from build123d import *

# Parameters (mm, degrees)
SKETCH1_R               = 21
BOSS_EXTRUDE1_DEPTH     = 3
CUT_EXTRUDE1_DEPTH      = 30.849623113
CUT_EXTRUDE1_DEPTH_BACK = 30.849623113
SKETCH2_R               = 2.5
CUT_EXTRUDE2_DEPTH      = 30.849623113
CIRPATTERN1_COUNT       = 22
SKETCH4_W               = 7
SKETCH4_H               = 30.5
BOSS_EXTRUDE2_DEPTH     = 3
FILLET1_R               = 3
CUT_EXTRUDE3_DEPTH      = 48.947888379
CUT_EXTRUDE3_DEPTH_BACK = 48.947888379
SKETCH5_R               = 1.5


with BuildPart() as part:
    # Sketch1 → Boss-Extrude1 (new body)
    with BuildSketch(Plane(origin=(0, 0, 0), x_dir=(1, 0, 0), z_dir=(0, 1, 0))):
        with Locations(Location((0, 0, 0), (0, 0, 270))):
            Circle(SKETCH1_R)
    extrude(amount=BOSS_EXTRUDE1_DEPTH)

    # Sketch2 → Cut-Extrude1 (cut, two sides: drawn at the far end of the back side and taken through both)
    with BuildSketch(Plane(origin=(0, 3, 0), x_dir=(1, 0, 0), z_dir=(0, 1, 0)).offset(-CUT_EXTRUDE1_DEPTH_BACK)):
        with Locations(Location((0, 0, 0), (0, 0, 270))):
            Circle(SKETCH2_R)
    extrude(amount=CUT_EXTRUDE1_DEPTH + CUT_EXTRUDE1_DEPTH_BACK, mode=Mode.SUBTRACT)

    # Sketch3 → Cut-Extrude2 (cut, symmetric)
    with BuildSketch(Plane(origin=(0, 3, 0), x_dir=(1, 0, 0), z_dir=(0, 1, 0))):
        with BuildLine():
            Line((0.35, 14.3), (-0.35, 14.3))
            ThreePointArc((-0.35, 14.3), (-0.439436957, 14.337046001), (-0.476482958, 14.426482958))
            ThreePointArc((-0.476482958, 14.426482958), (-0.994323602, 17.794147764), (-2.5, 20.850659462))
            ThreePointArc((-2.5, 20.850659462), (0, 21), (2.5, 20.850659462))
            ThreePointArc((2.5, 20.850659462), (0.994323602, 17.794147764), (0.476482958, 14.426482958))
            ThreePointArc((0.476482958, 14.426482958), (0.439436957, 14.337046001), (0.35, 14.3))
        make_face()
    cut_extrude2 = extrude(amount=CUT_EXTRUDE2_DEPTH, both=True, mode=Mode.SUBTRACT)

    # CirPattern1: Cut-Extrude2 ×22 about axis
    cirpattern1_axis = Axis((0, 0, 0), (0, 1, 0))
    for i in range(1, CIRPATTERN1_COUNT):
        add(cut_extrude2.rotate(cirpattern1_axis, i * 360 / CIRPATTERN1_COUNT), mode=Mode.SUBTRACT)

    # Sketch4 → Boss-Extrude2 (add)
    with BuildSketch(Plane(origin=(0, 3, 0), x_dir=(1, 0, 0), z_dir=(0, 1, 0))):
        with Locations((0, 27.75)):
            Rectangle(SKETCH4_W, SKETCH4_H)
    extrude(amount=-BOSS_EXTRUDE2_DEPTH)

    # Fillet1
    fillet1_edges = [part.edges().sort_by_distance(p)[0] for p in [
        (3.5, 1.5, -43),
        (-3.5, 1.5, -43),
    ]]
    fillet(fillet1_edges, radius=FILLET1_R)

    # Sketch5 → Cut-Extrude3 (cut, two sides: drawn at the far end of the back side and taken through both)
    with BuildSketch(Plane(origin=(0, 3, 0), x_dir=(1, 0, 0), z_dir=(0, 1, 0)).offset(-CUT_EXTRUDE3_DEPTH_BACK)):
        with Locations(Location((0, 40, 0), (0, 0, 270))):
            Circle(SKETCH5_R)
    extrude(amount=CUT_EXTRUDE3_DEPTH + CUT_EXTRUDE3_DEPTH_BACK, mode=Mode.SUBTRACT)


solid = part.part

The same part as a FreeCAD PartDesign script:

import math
import FreeCAD as App
import Part
import Sketcher
from FreeCAD import Vector


def edges_at(feature, points):
    """Names of the edges that pass closest to the given points."""
    edges = feature.Shape.Edges
    near = lambda p: min(range(len(edges)), key=lambda i: edges[i].distToShape(Part.Vertex(*p))[0])
    return sorted({f"Edge{near(p) + 1}" for p in points})

doc = App.newDocument("Part")
body = doc.addObject("PartDesign::Body", "Body")

sketch1 = doc.addObject("Sketcher::SketchObject", "Sketch")
body.addObject(sketch1)
sketch1.AttachmentSupport = (doc.XZ_Plane, [""])
sketch1.MapMode = "FlatFace"
sketch1.addGeometry(Part.Circle(Vector(0, 0, 0), Vector(0, 0, 1), 21), False)
sketch1.addConstraint([
    Sketcher.Constraint("Coincident", 0, 3, -1, 1),
    Sketcher.Constraint("Diameter", 0, 42.0),
])
pad1 = doc.addObject("PartDesign::Pad", "Pad")
body.addObject(pad1)
pad1.Profile = sketch1
pad1.Length = 3
pad1.Reversed = True

sketch2 = doc.addObject("Sketcher::SketchObject", "Sketch001")
body.addObject(sketch2)
sketch2.AttachmentSupport = (doc.XZ_Plane, [""])
sketch2.MapMode = "FlatFace"
sketch2.AttachmentOffset = App.Placement(Vector(0, 0, -3), App.Rotation())
sketch2.addGeometry(Part.Circle(Vector(0, 0, 0), Vector(0, 0, 1), 2.5), False)
sketch2.addConstraint([
    Sketcher.Constraint("Coincident", 0, 3, -1, 1),
    Sketcher.Constraint("Diameter", 0, 5.0),
])
pocket1 = doc.addObject("PartDesign::Pocket", "Pocket")
body.addObject(pocket1)
pocket1.Profile = sketch2
pocket1.Type = "ThroughAll"
pocket1.Midplane = True

sketch3 = doc.addObject("Sketcher::SketchObject", "Sketch002")
body.addObject(sketch3)
sketch3.AttachmentSupport = (doc.XZ_Plane, [""])
sketch3.MapMode = "FlatFace"
sketch3.AttachmentOffset = App.Placement(Vector(0, 0, -3), App.Rotation())
sketch3.addGeometry([
    Part.LineSegment(Vector(-0.35, -14.3, 0), Vector(0.35, -14.3, 0)),
    Part.ArcOfCircle(Part.Circle(Vector(0.35, -14.426483, 0), Vector(0, 0, 1), 0.126483), math.radians(0), math.radians(90)),
    Part.ArcOfCircle(Part.Circle(Vector(11.685844, -14.426483, 0), Vector(0, 0, 1), 11.209361), math.radians(180), math.radians(214.967255)),
    Part.ArcOfCircle(Part.Circle(Vector(0, 0, 0), Vector(0, 0, 1), 21), math.radians(-96.837141), math.radians(-83.162859)),
    Part.ArcOfCircle(Part.Circle(Vector(-11.685844, -14.426483, 0), Vector(0, 0, 1), 11.209361), math.radians(-34.967255), math.radians(0)),
    Part.ArcOfCircle(Part.Circle(Vector(-0.35, -14.426483, 0), Vector(0, 0, 1), 0.126483), math.radians(90), math.radians(180)),
], False)
sketch3.addConstraint([
    Sketcher.Constraint("Tangent", 0, 2, 1, 2),
    Sketcher.Constraint("Tangent", 1, 1, 2, 1),
    Sketcher.Constraint("Coincident", 2, 2, 3, 2),
    Sketcher.Constraint("Coincident", 3, 1, 4, 1),
    Sketcher.Constraint("Tangent", 4, 2, 5, 2),
    Sketcher.Constraint("Tangent", 5, 1, 0, 1),
    Sketcher.Constraint("Horizontal", 0),
    Sketcher.Constraint("Coincident", 3, 3, -1, 1),
    Sketcher.Constraint("Equal", 2, 4),
    Sketcher.Constraint("Equal", 1, 5),
    Sketcher.Constraint("Symmetric", 2, 3, 4, 3, -2),
    Sketcher.Constraint("Horizontal", 1, 3, 2, 3),
    Sketcher.Constraint("Radius", 3, 21.0),
    Sketcher.Constraint("DistanceX", 0, 1, 0, 2, 0.7),
    Sketcher.Constraint("DistanceX", 3, 1, 2, 2, 5.0),
    Sketcher.Constraint("DistanceY", 0, 2, -1, 1, 14.3),
    Sketcher.Constraint("Radius", 2, 11.209361),
])
pocket2 = doc.addObject("PartDesign::Pocket", "Pocket001")
body.addObject(pocket2)
pocket2.Profile = sketch3
pocket2.Length = 61.699246
pocket2.Midplane = True
doc.recompute()

polarpattern = doc.addObject("PartDesign::PolarPattern", "PolarPattern")
body.addObject(polarpattern)
polarpattern.Originals = [pocket2]
polarpattern.Axis = (doc.Y_Axis, [""])
polarpattern.Angle = 360
polarpattern.Occurrences = 22
body.Tip = polarpattern

sketch4 = doc.addObject("Sketcher::SketchObject", "Sketch003")
body.addObject(sketch4)
sketch4.AttachmentSupport = (doc.XZ_Plane, [""])
sketch4.MapMode = "FlatFace"
sketch4.AttachmentOffset = App.Placement(Vector(0, 0, -3), App.Rotation())
sketch4.addGeometry([
    Part.LineSegment(Vector(-3.5, -43, 0), Vector(-3.5, -12.5, 0)),
    Part.LineSegment(Vector(-3.5, -12.5, 0), Vector(3.5, -12.5, 0)),
    Part.LineSegment(Vector(3.5, -12.5, 0), Vector(3.5, -43, 0)),
    Part.LineSegment(Vector(3.5, -43, 0), Vector(-3.5, -43, 0)),
], False)
sketch4.addConstraint([
    Sketcher.Constraint("Coincident", 0, 2, 1, 1),
    Sketcher.Constraint("Coincident", 1, 2, 2, 1),
    Sketcher.Constraint("Coincident", 2, 2, 3, 1),
    Sketcher.Constraint("Coincident", 3, 2, 0, 1),
    Sketcher.Constraint("Vertical", 0),
    Sketcher.Constraint("Horizontal", 1),
    Sketcher.Constraint("Vertical", 2),
    Sketcher.Constraint("Horizontal", 3),
    Sketcher.Constraint("DistanceX", 1, 1, 1, 2, 7.0),
    Sketcher.Constraint("DistanceY", 0, 1, 0, 2, 30.5),
    Sketcher.Constraint("DistanceY", 2, 2, -1, 1, 43.0),
    Sketcher.Constraint("DistanceX", 0, 2, -1, 1, 3.5),
])
pad2 = doc.addObject("PartDesign::Pad", "Pad001")
body.addObject(pad2)
pad2.Profile = sketch4
pad2.Length = 3
doc.recompute()

fillet = doc.addObject("PartDesign::Fillet", "Fillet")
body.addObject(fillet)
fillet.Base = (pad2, edges_at(pad2, [(3.5, 1.5, -43), (-3.5, 1.5, -43)]))
fillet.Radius = 3

sketch5 = doc.addObject("Sketcher::SketchObject", "Sketch004")
body.addObject(sketch5)
sketch5.AttachmentSupport = (doc.XZ_Plane, [""])
sketch5.MapMode = "FlatFace"
sketch5.AttachmentOffset = App.Placement(Vector(0, 0, -3), App.Rotation())
sketch5.addGeometry(Part.Circle(Vector(0, -40, 0), Vector(0, 0, 1), 1.5), False)
sketch5.addConstraint([
    Sketcher.Constraint("PointOnObject", 0, 3, -2),
    Sketcher.Constraint("Diameter", 0, 3.0),
    Sketcher.Constraint("DistanceY", 0, 3, -1, 1, 40.0),
])
pocket3 = doc.addObject("PartDesign::Pocket", "Pocket002")
body.addObject(pocket3)
pocket3.Profile = sketch5
pocket3.Type = "ThroughAll"
pocket3.Midplane = True

doc.recompute()
